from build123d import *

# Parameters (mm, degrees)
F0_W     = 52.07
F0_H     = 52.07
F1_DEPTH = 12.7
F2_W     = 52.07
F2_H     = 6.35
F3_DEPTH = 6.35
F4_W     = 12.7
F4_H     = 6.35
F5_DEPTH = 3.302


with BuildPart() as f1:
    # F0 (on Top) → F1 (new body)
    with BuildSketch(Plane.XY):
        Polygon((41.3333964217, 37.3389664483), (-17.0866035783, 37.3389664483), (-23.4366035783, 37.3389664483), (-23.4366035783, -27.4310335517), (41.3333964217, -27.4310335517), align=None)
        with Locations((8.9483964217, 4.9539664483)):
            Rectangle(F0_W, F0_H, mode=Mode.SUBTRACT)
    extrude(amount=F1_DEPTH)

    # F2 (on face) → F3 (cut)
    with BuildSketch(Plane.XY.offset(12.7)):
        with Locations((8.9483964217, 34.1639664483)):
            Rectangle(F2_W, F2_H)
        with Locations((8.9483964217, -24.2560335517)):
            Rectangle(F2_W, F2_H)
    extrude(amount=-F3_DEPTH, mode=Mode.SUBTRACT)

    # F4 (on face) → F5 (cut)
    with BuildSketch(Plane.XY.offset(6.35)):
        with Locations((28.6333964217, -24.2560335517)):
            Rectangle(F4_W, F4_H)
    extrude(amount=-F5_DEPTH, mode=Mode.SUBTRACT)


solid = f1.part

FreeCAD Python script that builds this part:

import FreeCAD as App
import Part
import Sketcher
from FreeCAD import Vector
Q = App.Units.Quantity

doc = App.newDocument("Part")
params = doc.addObject("Spreadsheet::Sheet", "Params")
for row, (alias, value) in enumerate([
    ("sketch1_width", "2.55 in"),
    ("sketch1_width2", "2.05 in"),
    ("pad1_length", "0.5 in"),
    ("sketch2_width", "2.05 in"),
    ("sketch2_height", "0.25 in"),
    ("pocket1_length", "0.25 in"),
    ("sketch3_width", "0.5 in"),
    ("sketch3_height", "0.25 in"),
    ("pocket2_length", "0.13 in"),
], start=1):
    params.set(f"A{row}", alias)
    params.set(f"B{row}", "=" + value)
    params.setAlias(f"B{row}", alias)

body = doc.addObject("PartDesign::Body", "Body")

# Sketch on XY plane
sketch1 = body.newObject("Sketcher::SketchObject", "Sketch")
sketch1.AttachmentSupport = (doc.getObject("XY_Plane"), [""])
sketch1.MapMode = "FlatFace"
sketch1.addGeometry([
    Part.LineSegment(Vector(41, 37, 0), Vector(-23, 37, 0)),  # 0
    Part.LineSegment(Vector(-23, 37, 0), Vector(-23, -27, 0)),  # 1
    Part.LineSegment(Vector(-23, -27, 0), Vector(41, -27, 0)),  # 2
    Part.LineSegment(Vector(41, -27, 0), Vector(41, 37, 0)),  # 3
    Part.LineSegment(Vector(35, -21, 0), Vector(-17, -21, 0)),  # 4
    Part.LineSegment(Vector(-17, -21, 0), Vector(-17, 31, 0)),  # 5
    Part.LineSegment(Vector(-17, 31, 0), Vector(35, 31, 0)),  # 6
    Part.LineSegment(Vector(35, 31, 0), Vector(35, -21, 0)),  # 7
], False)
sketch1.addConstraint([
    Sketcher.Constraint("Coincident", 0, 2, 1, 1),
    Sketcher.Constraint("Coincident", 1, 2, 2, 1),
    Sketcher.Constraint("Coincident", 2, 2, 3, 1),
    Sketcher.Constraint("Coincident", 3, 2, 0, 1),
    Sketcher.Constraint("Coincident", 4, 2, 5, 1),
    Sketcher.Constraint("Coincident", 5, 2, 6, 1),
    Sketcher.Constraint("Coincident", 6, 2, 7, 1),
    Sketcher.Constraint("Coincident", 7, 2, 4, 1),
    Sketcher.Constraint("Horizontal", 0),
    Sketcher.Constraint("Vertical", 1),
    Sketcher.Constraint("Horizontal", 2),
    Sketcher.Constraint("Vertical", 3),
    Sketcher.Constraint("Horizontal", 4),
    Sketcher.Constraint("Vertical", 5),
    Sketcher.Constraint("Horizontal", 6),
    Sketcher.Constraint("Vertical", 7),
    Sketcher.Constraint("Equal", 2, 1),
    Sketcher.Constraint("Equal", 6, 5),
    Sketcher.Constraint("DistanceX", 0, 2, 0, 1, Q("2.55 in")),
    Sketcher.Constraint("DistanceX", 4, 2, 4, 1, Q("2.05 in")),
    Sketcher.Constraint("DistanceY", 4, 2, 0, 2, Q("2.3 in")),
    Sketcher.Constraint("DistanceX", 4, 2, 2, 2, Q("2.3 in")),
    Sketcher.Constraint("DistanceX", 0, 2, -1, 1, 23.436604),
    Sketcher.Constraint("DistanceY", -1, 1, 0, 2, 37.338966),
])
sketch1.setExpression("Constraints[18]", "Params.sketch1_width")
sketch1.setExpression("Constraints[19]", "Params.sketch1_width2")
pad1 = body.newObject("PartDesign::Pad", "Pad")
pad1.Profile = sketch1
pad1.setExpression("Length", "Params.pad1_length")

# Sketch on XY plane
sketch2 = body.newObject("Sketcher::SketchObject", "Sketch001")
sketch2.AttachmentSupport = (doc.getObject("XY_Plane"), [""])
sketch2.MapMode = "FlatFace"
sketch2.AttachmentOffset = App.Placement(Vector(0, 0, 0.5 * 25.4), App.Rotation())
sketch2.addGeometry([
    Part.LineSegment(Vector(-17, 37, 0), Vector(-17, 31, 0)),  # 0
    Part.LineSegment(Vector(-17, 31, 0), Vector(35, 31, 0)),  # 1
    Part.LineSegment(Vector(35, 31, 0), Vector(35, 37, 0)),  # 2
    Part.LineSegment(Vector(35, 37, 0), Vector(-17, 37, 0)),  # 3
    Part.LineSegment(Vector(-17, -21, 0), Vector(-17, -27, 0)),  # 4
    Part.LineSegment(Vector(-17, -27, 0), Vector(35, -27, 0)),  # 5
    Part.LineSegment(Vector(35, -27, 0), Vector(35, -21, 0)),  # 6
    Part.LineSegment(Vector(35, -21, 0), Vector(-17, -21, 0)),  # 7
], False)
sketch2.addConstraint([
    Sketcher.Constraint("Coincident", 0, 2, 1, 1),
    Sketcher.Constraint("Coincident", 1, 2, 2, 1),
    Sketcher.Constraint("Coincident", 2, 2, 3, 1),
    Sketcher.Constraint("Coincident", 3, 2, 0, 1),
    Sketcher.Constraint("Coincident", 4, 2, 5, 1),
    Sketcher.Constraint("Coincident", 5, 2, 6, 1),
    Sketcher.Constraint("Coincident", 6, 2, 7, 1),
    Sketcher.Constraint("Coincident", 7, 2, 4, 1),
    Sketcher.Constraint("Vertical", 0),
    Sketcher.Constraint("Horizontal", 1),
    Sketcher.Constraint("Vertical", 2),
    Sketcher.Constraint("Horizontal", 3),
    Sketcher.Constraint("Vertical", 4),
    Sketcher.Constraint("Horizontal", 5),
    Sketcher.Constraint("Vertical", 6),
    Sketcher.Constraint("Horizontal", 7),
    Sketcher.Constraint("Vertical", 3, 2, 4, 2),
    Sketcher.Constraint("Vertical", 2, 2, 5, 2),
    Sketcher.Constraint("Equal", 2, 4),
    Sketcher.Constraint("DistanceX", 1, 1, 1, 2, Q("2.05 in")),
    Sketcher.Constraint("DistanceY", 0, 2, 0, 1, Q("0.25 in")),
    Sketcher.Constraint("DistanceY", 4, 2, 0, 2, Q("2.3 in")),
    Sketcher.Constraint("DistanceX", 0, 2, -1, 1, 17.086604),
    Sketcher.Constraint("DistanceY", -1, 1, 0, 2, 30.988966),
])
sketch2.setExpression("Constraints[19]", "Params.sketch2_width")
sketch2.setExpression("Constraints[20]", "Params.sketch2_height")
pocket1 = body.newObject("PartDesign::Pocket", "Pocket")
pocket1.Profile = sketch2
pocket1.setExpression("Length", "Params.pocket1_length")

# Sketch on XY plane
sketch3 = body.newObject("Sketcher::SketchObject", "Sketch002")
sketch3.AttachmentSupport = (doc.getObject("XY_Plane"), [""])
sketch3.MapMode = "FlatFace"
sketch3.AttachmentOffset = App.Placement(Vector(0, 0, 0.25 * 25.4), App.Rotation())
sketch3.addGeometry([
    Part.LineSegment(Vector(22, -21, 0), Vector(22, -27, 0)),
    Part.LineSegment(Vector(22, -27, 0), Vector(35, -27, 0)),
    Part.LineSegment(Vector(35, -27, 0), Vector(35, -21, 0)),
    Part.LineSegment(Vector(35, -21, 0), Vector(22, -21, 0)),
], False)
sketch3.addConstraint([
    Sketcher.Constraint("Coincident", 0, 2, 1, 1),
    Sketcher.Constraint("Coincident", 1, 2, 2, 1),
    Sketcher.Constraint("Coincident", 2, 2, 3, 1),
    Sketcher.Constraint("Coincident", 3, 2, 0, 1),
    Sketcher.Constraint("Vertical", 0),
    Sketcher.Constraint("Horizontal", 1),
    Sketcher.Constraint("Vertical", 2),
    Sketcher.Constraint("Horizontal", 3),
    Sketcher.Constraint("DistanceX", 1, 1, 1, 2, Q("0.5 in")),
    Sketcher.Constraint("DistanceY", 0, 2, 0, 1, Q("0.25 in")),
    Sketcher.Constraint("DistanceX", -1, 1, 0, 2, 22.283396),
    Sketcher.Constraint("DistanceY", 0, 2, -1, 1, 27.431034),
])
sketch3.setExpression("Constraints[8]", "Params.sketch3_width")
sketch3.setExpression("Constraints[9]", "Params.sketch3_height")
pocket2 = body.newObject("PartDesign::Pocket", "Pocket001")
pocket2.Profile = sketch3
pocket2.setExpression("Length", "Params.pocket2_length")

doc.recompute()
